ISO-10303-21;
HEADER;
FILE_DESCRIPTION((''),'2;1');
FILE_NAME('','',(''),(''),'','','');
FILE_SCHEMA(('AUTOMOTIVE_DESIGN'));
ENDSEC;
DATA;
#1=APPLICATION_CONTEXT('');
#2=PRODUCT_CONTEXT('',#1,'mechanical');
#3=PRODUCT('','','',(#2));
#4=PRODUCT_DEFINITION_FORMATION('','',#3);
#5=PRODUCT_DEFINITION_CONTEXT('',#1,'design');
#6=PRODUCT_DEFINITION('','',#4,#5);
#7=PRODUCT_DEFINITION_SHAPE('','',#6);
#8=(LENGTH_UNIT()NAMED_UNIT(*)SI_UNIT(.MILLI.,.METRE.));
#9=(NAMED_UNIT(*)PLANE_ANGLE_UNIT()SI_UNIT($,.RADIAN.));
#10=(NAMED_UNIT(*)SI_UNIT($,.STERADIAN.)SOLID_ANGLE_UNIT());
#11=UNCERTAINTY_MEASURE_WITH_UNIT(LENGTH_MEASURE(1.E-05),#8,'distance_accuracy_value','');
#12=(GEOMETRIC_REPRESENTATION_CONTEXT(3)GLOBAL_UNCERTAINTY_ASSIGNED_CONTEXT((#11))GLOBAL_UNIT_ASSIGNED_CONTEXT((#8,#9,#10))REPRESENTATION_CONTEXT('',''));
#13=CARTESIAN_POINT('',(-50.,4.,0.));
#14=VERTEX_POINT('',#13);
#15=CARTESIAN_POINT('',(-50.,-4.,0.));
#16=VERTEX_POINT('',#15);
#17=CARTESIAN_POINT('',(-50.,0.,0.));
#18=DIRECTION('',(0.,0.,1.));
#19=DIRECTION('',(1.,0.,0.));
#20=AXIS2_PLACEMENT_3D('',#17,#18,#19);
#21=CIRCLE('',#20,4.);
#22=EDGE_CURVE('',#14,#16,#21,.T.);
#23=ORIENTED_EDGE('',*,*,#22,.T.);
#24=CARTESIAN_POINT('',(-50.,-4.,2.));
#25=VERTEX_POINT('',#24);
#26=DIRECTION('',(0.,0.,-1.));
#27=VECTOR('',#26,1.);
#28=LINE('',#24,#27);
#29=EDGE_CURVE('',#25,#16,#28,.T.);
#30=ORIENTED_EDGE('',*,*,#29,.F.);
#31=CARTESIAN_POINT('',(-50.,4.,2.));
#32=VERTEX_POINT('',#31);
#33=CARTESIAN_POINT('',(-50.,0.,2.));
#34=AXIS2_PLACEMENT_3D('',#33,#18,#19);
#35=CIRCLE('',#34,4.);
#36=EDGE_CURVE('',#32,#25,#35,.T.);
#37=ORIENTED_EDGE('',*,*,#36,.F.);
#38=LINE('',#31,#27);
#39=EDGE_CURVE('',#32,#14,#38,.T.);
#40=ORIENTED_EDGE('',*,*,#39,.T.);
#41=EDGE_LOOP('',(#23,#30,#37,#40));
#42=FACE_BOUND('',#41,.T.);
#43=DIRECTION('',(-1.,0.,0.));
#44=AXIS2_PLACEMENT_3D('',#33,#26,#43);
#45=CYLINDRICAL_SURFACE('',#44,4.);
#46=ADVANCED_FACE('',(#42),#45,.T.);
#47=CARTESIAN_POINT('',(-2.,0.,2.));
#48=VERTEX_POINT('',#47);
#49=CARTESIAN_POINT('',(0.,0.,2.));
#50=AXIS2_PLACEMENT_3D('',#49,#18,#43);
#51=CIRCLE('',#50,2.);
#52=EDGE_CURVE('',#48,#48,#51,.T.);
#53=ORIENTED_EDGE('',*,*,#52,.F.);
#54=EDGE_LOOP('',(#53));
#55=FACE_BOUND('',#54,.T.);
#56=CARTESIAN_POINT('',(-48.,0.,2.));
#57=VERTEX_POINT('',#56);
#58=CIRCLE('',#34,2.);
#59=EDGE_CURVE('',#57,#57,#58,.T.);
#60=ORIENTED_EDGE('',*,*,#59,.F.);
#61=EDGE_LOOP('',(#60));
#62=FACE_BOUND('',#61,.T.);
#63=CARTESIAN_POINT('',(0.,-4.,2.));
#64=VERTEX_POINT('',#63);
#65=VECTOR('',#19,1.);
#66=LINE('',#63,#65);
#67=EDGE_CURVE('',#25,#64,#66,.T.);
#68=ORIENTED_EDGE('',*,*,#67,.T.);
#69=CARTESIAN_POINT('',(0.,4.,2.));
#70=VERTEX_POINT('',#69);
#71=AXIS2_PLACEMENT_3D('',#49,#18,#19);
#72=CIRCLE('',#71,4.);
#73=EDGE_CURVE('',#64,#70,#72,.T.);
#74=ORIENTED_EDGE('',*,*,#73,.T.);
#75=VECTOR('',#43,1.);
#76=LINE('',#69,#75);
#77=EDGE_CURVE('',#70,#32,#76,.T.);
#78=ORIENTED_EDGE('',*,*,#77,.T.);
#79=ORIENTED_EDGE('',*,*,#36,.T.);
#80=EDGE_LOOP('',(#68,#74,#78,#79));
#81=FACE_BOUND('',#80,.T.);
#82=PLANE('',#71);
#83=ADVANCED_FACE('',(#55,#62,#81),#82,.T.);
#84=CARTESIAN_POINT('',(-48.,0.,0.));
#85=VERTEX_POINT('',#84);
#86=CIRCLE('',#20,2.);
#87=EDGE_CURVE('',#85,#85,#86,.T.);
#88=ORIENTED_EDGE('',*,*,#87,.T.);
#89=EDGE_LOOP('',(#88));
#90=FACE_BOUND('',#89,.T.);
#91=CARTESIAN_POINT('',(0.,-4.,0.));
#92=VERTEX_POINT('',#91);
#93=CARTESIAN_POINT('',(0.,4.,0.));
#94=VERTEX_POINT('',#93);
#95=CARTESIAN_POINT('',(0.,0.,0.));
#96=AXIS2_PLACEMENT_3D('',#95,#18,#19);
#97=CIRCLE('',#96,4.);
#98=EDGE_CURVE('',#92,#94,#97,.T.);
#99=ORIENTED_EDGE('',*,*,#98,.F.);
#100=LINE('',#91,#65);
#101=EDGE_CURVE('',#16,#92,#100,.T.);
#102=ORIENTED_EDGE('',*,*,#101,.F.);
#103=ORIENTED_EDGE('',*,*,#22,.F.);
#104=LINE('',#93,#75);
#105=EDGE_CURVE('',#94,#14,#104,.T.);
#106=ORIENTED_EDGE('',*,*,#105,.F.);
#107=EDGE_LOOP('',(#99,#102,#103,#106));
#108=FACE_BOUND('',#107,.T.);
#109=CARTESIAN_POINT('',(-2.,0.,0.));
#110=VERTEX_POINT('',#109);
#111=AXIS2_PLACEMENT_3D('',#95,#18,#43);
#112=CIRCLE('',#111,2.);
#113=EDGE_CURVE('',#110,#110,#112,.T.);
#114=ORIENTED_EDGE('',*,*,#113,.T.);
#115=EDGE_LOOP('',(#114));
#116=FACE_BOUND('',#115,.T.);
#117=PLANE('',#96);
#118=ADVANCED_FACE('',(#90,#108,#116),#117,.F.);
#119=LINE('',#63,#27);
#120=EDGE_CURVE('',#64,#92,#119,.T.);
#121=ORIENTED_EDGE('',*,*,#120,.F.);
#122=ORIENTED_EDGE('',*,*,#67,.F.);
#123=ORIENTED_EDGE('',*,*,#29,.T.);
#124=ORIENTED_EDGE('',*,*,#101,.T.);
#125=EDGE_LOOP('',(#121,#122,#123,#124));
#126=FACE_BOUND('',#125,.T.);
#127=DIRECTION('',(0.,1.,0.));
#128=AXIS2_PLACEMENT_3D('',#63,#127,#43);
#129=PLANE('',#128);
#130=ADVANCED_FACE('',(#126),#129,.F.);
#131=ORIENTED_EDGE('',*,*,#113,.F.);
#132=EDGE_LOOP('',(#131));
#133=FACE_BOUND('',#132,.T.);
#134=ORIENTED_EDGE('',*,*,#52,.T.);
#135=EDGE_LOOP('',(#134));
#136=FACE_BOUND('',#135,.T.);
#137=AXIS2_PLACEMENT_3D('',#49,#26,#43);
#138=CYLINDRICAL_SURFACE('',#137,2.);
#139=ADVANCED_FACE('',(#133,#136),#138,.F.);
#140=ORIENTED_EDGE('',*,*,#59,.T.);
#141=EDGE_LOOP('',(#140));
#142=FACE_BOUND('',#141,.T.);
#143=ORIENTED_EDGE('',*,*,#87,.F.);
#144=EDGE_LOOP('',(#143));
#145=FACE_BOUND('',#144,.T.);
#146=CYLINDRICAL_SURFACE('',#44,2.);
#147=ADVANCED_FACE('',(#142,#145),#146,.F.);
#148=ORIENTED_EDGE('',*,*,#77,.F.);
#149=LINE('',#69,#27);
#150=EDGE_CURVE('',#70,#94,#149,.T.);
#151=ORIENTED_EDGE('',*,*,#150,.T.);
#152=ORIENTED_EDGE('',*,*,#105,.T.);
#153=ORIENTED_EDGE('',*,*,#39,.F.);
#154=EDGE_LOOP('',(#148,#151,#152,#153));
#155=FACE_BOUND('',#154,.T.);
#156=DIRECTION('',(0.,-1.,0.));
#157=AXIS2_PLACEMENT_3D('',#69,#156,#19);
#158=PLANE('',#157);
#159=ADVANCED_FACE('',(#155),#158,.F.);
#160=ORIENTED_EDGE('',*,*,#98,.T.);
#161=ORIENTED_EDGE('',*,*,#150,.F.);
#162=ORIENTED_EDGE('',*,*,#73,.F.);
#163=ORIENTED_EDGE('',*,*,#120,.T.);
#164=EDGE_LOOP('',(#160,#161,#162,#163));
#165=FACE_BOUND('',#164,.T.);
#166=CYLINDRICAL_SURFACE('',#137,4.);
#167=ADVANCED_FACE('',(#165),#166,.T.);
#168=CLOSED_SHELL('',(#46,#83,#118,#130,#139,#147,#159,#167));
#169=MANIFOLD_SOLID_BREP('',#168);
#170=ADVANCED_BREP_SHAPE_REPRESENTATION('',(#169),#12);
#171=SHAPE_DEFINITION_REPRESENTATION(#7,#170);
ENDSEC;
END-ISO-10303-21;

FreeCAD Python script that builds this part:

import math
import FreeCAD as App
import Part
import Sketcher

doc = App.newDocument("Part")
params = doc.addObject("Spreadsheet::Sheet", "Params")
for row, (alias, value) in enumerate([
    ("sketch1_diameter", "4 mm"),
    ("sketch1_radius", "4 mm"),
    ("sketch1_width", "50 mm"),
    ("pad1_length", "2 mm"),
], start=1):
    params.set(f"A{row}", alias)
    params.set(f"B{row}", "=" + value)
    params.setAlias(f"B{row}", alias)

body = doc.addObject("PartDesign::Body", "Body")

sketch1 = body.newObject("Sketcher::SketchObject", "Sketch")
sketch1.AttachmentSupport = (doc.getObject("XY_Plane"), [""])
sketch1.MapMode = "FlatFace"
sketch1.addGeometry([
    Part.LineSegment(App.Vector(-50, -4, 0), App.Vector(0, -4, 0)),
    Part.ArcOfCircle(Part.Circle(App.Vector(0, 0, 0), App.Vector(0, 0, 1), 4), math.radians(-90), math.radians(90)),
    Part.LineSegment(App.Vector(0, 4, 0), App.Vector(-50, 4, 0)),
    Part.ArcOfCircle(Part.Circle(App.Vector(-50, 0, 0), App.Vector(0, 0, 1), 4), math.radians(90), math.radians(270)),
    Part.Circle(App.Vector(0, 0, 0), App.Vector(0, 0, 1), 2),
    Part.Circle(App.Vector(-50, 0, 0), App.Vector(0, 0, 1), 2),
], False)
sketch1.addConstraint([
    Sketcher.Constraint("Tangent", 0, 2, 1, 1),
    Sketcher.Constraint("Tangent", 1, 2, 2, 1),
    Sketcher.Constraint("Tangent", 2, 2, 3, 1),
    Sketcher.Constraint("Tangent", 3, 2, 0, 1),
    Sketcher.Constraint("Horizontal", 0),
    Sketcher.Constraint("Horizontal", 2),
    Sketcher.Constraint("Coincident", 1, 3, -1, 1),
    Sketcher.Constraint("Coincident", 4, 3, -1, 1),
    Sketcher.Constraint("Coincident", 5, 3, 3, 3),
    Sketcher.Constraint("Equal", 4, 5),
    Sketcher.Constraint("Diameter", 4, 4.0),
    Sketcher.Constraint("Radius", 1, 4.0),
    Sketcher.Constraint("DistanceX", 0, 1, 0, 2, 50.0),
])
sketch1.setExpression("Constraints[10]", "Params.sketch1_diameter")
sketch1.setExpression("Constraints[11]", "Params.sketch1_radius")
sketch1.setExpression("Constraints[12]", "Params.sketch1_width")
pad1 = body.newObject("PartDesign::Pad", "Pad")
pad1.Profile = sketch1
pad1.setExpression("Length", "Params.pad1_length")

doc.recompute()
